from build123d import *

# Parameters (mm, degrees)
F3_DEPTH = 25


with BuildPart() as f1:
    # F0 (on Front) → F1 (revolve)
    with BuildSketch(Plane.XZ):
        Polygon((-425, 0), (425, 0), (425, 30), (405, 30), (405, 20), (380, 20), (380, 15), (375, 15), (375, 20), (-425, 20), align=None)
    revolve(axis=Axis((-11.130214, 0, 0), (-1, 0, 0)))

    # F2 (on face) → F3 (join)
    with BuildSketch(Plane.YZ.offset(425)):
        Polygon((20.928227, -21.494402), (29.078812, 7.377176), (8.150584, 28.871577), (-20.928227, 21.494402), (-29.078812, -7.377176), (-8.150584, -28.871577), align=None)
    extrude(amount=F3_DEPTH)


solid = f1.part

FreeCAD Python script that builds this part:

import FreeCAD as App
import Part
import Sketcher


def add_polygon(sketch, points):
    """Adds a closed chain of lines whose ends are joined by coincident constraints."""
    first, n = sketch.GeometryCount, len(points)
    for a, b in zip(points, points[1:] + points[:1]):
        sketch.addGeometry(Part.LineSegment(App.Vector(*a, 0), App.Vector(*b, 0)), False)
    for i in range(n):
        sketch.addConstraint(Sketcher.Constraint("Coincident", first + i, 2, first + (i + 1) % n, 1))

doc = App.newDocument("Part")
body = doc.addObject("PartDesign::Body", "Body")

# Sketch on XZ plane
sketch1 = doc.addObject("Sketcher::SketchObject", "Sketch")
body.addObject(sketch1)
sketch1.AttachmentSupport = (doc.XZ_Plane, [""])
sketch1.MapMode = "FlatFace"
add_polygon(sketch1, [(-425, 0), (425, 0), (425, 30), (405, 30), (405, 20), (380, 20), (380, 15), (375, 15), (375, 20), (-425, 20)])  # lines 0-9
sketch1.addConstraint(Sketcher.Constraint("Horizontal", 0))
sketch1.addConstraint(Sketcher.Constraint("Vertical", 1))
sketch1.addConstraint(Sketcher.Constraint("Horizontal", 2))
sketch1.addConstraint(Sketcher.Constraint("Vertical", 3))
sketch1.addConstraint(Sketcher.Constraint("Horizontal", 4))
sketch1.addConstraint(Sketcher.Constraint("Vertical", 5))
sketch1.addConstraint(Sketcher.Constraint("Horizontal", 6))
sketch1.addConstraint(Sketcher.Constraint("Vertical", 7))
sketch1.addConstraint(Sketcher.Constraint("Horizontal", 8))
sketch1.addConstraint(Sketcher.Constraint("Vertical", 9))
sketch1.addConstraint(Sketcher.Constraint("Symmetric", 0, 2, 9, 2, -1, 1))
sketch1.addConstraint(Sketcher.Constraint("Horizontal", 4, 2, 7, 2))
sketch1.addConstraint(Sketcher.Constraint("Equal", 6, 5))
sketch1.addConstraint(Sketcher.Constraint("Equal", 2, 9))
sketch1.addConstraint(Sketcher.Constraint("DistanceX", 0, 1, 0, 2, 850.0))
sketch1.addConstraint(Sketcher.Constraint("DistanceX", 2, 2, 2, 1, 20.0))
sketch1.addConstraint(Sketcher.Constraint("DistanceX", 4, 2, 4, 1, 25.0))
sketch1.addConstraint(Sketcher.Constraint("DistanceX", 6, 2, 6, 1, 5.0))
sketch1.addConstraint(Sketcher.Constraint("DistanceY", 1, 1, 1, 2, 30.0))
revolution = doc.addObject("PartDesign::Revolution", "Revolution")
body.addObject(revolution)
revolution.Profile = sketch1
revolution.ReferenceAxis = (sketch1, ["H_Axis"])
revolution.Angle = 360

# Sketch on YZ plane
sketch2 = doc.addObject("Sketcher::SketchObject", "Sketch001")
body.addObject(sketch2)
sketch2.AttachmentSupport = (doc.YZ_Plane, [""])
sketch2.MapMode = "FlatFace"
sketch2.AttachmentOffset = App.Placement(App.Vector(0, 0, 425), App.Rotation())
add_polygon(sketch2, [(20.928227, -21.494402), (29.078812, 7.377176), (8.150584, 28.871577), (-20.928227, 21.494402), (-29.078812, -7.377176), (-8.150584, -28.871577)])  # lines 0-5
sketch2.addConstraint(Sketcher.Constraint("Symmetric", 0, 2, 3, 2, -1, 1))
sketch2.addConstraint(Sketcher.Constraint("Symmetric", 1, 2, 4, 2, -1, 1))
sketch2.addConstraint(Sketcher.Constraint("Symmetric", 2, 2, 5, 2, -1, 1))
sketch2.addConstraint(Sketcher.Constraint("Equal", 0, 1))
sketch2.addConstraint(Sketcher.Constraint("Equal", 1, 2))
sketch2.addConstraint(Sketcher.Constraint("Distance", 0, 30.000001))
sketch2.addConstraint(Sketcher.Constraint("DistanceY", 0, 2, 1, 2, 21.494401))
sketch2.addConstraint(Sketcher.Constraint("DistanceX", -1, 1, 0, 2, 29.078812))
sketch2.addConstraint(Sketcher.Constraint("DistanceX", 2, 2, 1, 2, 29.078811))
pad1 = doc.addObject("PartDesign::Pad", "Pad")
body.addObject(pad1)
pad1.Profile = sketch2
pad1.Length = 25

doc.recompute()
